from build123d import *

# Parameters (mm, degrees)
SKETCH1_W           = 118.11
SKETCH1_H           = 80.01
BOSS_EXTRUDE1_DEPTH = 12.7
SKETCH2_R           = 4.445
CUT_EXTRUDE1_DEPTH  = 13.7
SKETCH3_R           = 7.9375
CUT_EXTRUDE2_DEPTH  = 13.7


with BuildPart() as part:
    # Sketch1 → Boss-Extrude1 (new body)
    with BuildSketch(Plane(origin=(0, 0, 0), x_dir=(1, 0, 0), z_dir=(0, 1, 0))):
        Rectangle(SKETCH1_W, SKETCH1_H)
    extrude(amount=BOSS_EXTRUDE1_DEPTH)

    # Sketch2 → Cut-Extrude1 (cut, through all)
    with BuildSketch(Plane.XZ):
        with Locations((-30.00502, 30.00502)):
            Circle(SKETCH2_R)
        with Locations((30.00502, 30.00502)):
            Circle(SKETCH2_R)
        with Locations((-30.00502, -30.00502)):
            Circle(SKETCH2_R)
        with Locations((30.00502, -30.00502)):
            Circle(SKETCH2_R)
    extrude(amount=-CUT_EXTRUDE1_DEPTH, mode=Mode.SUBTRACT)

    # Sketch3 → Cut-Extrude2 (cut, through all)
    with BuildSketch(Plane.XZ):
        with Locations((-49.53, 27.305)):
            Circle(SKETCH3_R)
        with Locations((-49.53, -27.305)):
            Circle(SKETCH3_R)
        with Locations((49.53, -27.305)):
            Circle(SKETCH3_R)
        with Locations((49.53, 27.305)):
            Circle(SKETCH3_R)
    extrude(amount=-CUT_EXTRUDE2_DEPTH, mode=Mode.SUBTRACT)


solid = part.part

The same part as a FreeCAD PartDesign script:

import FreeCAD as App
import Part
import Sketcher
from FreeCAD import Vector
Q = App.Units.Quantity

doc = App.newDocument("Part")
body = doc.addObject("PartDesign::Body", "Body")

# Sketch on XZ plane
sketch1 = doc.addObject("Sketcher::SketchObject", "Sketch")
body.addObject(sketch1)
sketch1.AttachmentSupport = (doc.XZ_Plane, [""])
sketch1.MapMode = "FlatFace"
sketch1.addGeometry(Part.LineSegment(Vector(-59, -40, 0), Vector(-59, 40, 0)), False)
sketch1.addGeometry(Part.LineSegment(Vector(-59, 40, 0), Vector(59, 40, 0)), False)
sketch1.addGeometry(Part.LineSegment(Vector(59, 40, 0), Vector(59, -40, 0)), False)
sketch1.addGeometry(Part.LineSegment(Vector(59, -40, 0), Vector(-59, -40, 0)), False)
sketch1.addConstraint(Sketcher.Constraint("Coincident", 0, 2, 1, 1))
sketch1.addConstraint(Sketcher.Constraint("Coincident", 1, 2, 2, 1))
sketch1.addConstraint(Sketcher.Constraint("Coincident", 2, 2, 3, 1))
sketch1.addConstraint(Sketcher.Constraint("Coincident", 3, 2, 0, 1))
sketch1.addConstraint(Sketcher.Constraint("Vertical", 0))
sketch1.addConstraint(Sketcher.Constraint("Horizontal", 1))
sketch1.addConstraint(Sketcher.Constraint("Vertical", 2))
sketch1.addConstraint(Sketcher.Constraint("Horizontal", 3))
sketch1.addConstraint(Sketcher.Constraint("Symmetric", 0, 2, 2, 2, -1, 1))
sketch1.addConstraint(Sketcher.Constraint("DistanceX", 1, 1, 1, 2, Q("4.65 in")))
sketch1.addConstraint(Sketcher.Constraint("DistanceY", 0, 1, 0, 2, Q("3.15 in")))
pad1 = doc.addObject("PartDesign::Pad", "Pad")
body.addObject(pad1)
pad1.Profile = sketch1
pad1.Length = Q("0.5 in")
pad1.Reversed = True

# Sketch on XZ plane
sketch2 = doc.addObject("Sketcher::SketchObject", "Sketch001")
body.addObject(sketch2)
sketch2.AttachmentSupport = (doc.XZ_Plane, [""])
sketch2.MapMode = "FlatFace"
sketch2.addGeometry(Part.Circle(Vector(-30, 30, 0), Vector(0, 0, 1), 4.4), False)
sketch2.addGeometry(Part.Circle(Vector(30, 30, 0), Vector(0, 0, 1), 4.4), False)
sketch2.addGeometry(Part.Circle(Vector(-30, -30, 0), Vector(0, 0, 1), 4.4), False)
sketch2.addGeometry(Part.Circle(Vector(30, -30, 0), Vector(0, 0, 1), 4.4), False)
sketch2.addConstraint(Sketcher.Constraint("Equal", 0, 1))
sketch2.addConstraint(Sketcher.Constraint("Equal", 1, 2))
sketch2.addConstraint(Sketcher.Constraint("Equal", 2, 3))
sketch2.addConstraint(Sketcher.Constraint("Symmetric", 1, 3, 2, 3, -1, 1))
sketch2.addConstraint(Sketcher.Constraint("Symmetric", 0, 3, 3, 3, -1, 1))
sketch2.addConstraint(Sketcher.Constraint("Symmetric", 0, 3, 1, 3, -2))
sketch2.addConstraint(Sketcher.Constraint("Diameter", 0, Q("0.35 in")))
sketch2.addConstraint(Sketcher.Constraint("DistanceX", 0, 3, -1, 1, Q("1.1813 in")))
sketch2.addConstraint(Sketcher.Constraint("DistanceY", -1, 1, 0, 3, Q("1.1813 in")))
pocket1 = doc.addObject("PartDesign::Pocket", "Pocket")
body.addObject(pocket1)
pocket1.Profile = sketch2
pocket1.Type = "ThroughAll"

# Sketch on XZ plane
sketch3 = doc.addObject("Sketcher::SketchObject", "Sketch002")
body.addObject(sketch3)
sketch3.AttachmentSupport = (doc.XZ_Plane, [""])
sketch3.MapMode = "FlatFace"
sketch3.addGeometry(Part.Circle(Vector(-50, 27, 0), Vector(0, 0, 1), 8), False)
sketch3.addGeometry(Part.Circle(Vector(-50, -27, 0), Vector(0, 0, 1), 8), False)
sketch3.addGeometry(Part.Circle(Vector(50, -27, 0), Vector(0, 0, 1), 8), False)
sketch3.addGeometry(Part.Circle(Vector(50, 27, 0), Vector(0, 0, 1), 8), False)
sketch3.addConstraint(Sketcher.Constraint("Equal", 0, 1))
sketch3.addConstraint(Sketcher.Constraint("Equal", 1, 2))
sketch3.addConstraint(Sketcher.Constraint("Equal", 2, 3))
sketch3.addConstraint(Sketcher.Constraint("Symmetric", 0, 3, 2, 3, -1, 1))
sketch3.addConstraint(Sketcher.Constraint("Symmetric", 1, 3, 3, 3, -1, 1))
sketch3.addConstraint(Sketcher.Constraint("Symmetric", 1, 3, 2, 3, -2))
sketch3.addConstraint(Sketcher.Constraint("Diameter", 0, Q("0.625 in")))
sketch3.addConstraint(Sketcher.Constraint("DistanceX", 1, 3, 2, 3, Q("3.9 in")))
sketch3.addConstraint(Sketcher.Constraint("DistanceY", 1, 3, 0, 3, Q("2.15 in")))
pocket2 = doc.addObject("PartDesign::Pocket", "Pocket001")
body.addObject(pocket2)
pocket2.Profile = sketch3
pocket2.Type = "ThroughAll"

doc.recompute()
